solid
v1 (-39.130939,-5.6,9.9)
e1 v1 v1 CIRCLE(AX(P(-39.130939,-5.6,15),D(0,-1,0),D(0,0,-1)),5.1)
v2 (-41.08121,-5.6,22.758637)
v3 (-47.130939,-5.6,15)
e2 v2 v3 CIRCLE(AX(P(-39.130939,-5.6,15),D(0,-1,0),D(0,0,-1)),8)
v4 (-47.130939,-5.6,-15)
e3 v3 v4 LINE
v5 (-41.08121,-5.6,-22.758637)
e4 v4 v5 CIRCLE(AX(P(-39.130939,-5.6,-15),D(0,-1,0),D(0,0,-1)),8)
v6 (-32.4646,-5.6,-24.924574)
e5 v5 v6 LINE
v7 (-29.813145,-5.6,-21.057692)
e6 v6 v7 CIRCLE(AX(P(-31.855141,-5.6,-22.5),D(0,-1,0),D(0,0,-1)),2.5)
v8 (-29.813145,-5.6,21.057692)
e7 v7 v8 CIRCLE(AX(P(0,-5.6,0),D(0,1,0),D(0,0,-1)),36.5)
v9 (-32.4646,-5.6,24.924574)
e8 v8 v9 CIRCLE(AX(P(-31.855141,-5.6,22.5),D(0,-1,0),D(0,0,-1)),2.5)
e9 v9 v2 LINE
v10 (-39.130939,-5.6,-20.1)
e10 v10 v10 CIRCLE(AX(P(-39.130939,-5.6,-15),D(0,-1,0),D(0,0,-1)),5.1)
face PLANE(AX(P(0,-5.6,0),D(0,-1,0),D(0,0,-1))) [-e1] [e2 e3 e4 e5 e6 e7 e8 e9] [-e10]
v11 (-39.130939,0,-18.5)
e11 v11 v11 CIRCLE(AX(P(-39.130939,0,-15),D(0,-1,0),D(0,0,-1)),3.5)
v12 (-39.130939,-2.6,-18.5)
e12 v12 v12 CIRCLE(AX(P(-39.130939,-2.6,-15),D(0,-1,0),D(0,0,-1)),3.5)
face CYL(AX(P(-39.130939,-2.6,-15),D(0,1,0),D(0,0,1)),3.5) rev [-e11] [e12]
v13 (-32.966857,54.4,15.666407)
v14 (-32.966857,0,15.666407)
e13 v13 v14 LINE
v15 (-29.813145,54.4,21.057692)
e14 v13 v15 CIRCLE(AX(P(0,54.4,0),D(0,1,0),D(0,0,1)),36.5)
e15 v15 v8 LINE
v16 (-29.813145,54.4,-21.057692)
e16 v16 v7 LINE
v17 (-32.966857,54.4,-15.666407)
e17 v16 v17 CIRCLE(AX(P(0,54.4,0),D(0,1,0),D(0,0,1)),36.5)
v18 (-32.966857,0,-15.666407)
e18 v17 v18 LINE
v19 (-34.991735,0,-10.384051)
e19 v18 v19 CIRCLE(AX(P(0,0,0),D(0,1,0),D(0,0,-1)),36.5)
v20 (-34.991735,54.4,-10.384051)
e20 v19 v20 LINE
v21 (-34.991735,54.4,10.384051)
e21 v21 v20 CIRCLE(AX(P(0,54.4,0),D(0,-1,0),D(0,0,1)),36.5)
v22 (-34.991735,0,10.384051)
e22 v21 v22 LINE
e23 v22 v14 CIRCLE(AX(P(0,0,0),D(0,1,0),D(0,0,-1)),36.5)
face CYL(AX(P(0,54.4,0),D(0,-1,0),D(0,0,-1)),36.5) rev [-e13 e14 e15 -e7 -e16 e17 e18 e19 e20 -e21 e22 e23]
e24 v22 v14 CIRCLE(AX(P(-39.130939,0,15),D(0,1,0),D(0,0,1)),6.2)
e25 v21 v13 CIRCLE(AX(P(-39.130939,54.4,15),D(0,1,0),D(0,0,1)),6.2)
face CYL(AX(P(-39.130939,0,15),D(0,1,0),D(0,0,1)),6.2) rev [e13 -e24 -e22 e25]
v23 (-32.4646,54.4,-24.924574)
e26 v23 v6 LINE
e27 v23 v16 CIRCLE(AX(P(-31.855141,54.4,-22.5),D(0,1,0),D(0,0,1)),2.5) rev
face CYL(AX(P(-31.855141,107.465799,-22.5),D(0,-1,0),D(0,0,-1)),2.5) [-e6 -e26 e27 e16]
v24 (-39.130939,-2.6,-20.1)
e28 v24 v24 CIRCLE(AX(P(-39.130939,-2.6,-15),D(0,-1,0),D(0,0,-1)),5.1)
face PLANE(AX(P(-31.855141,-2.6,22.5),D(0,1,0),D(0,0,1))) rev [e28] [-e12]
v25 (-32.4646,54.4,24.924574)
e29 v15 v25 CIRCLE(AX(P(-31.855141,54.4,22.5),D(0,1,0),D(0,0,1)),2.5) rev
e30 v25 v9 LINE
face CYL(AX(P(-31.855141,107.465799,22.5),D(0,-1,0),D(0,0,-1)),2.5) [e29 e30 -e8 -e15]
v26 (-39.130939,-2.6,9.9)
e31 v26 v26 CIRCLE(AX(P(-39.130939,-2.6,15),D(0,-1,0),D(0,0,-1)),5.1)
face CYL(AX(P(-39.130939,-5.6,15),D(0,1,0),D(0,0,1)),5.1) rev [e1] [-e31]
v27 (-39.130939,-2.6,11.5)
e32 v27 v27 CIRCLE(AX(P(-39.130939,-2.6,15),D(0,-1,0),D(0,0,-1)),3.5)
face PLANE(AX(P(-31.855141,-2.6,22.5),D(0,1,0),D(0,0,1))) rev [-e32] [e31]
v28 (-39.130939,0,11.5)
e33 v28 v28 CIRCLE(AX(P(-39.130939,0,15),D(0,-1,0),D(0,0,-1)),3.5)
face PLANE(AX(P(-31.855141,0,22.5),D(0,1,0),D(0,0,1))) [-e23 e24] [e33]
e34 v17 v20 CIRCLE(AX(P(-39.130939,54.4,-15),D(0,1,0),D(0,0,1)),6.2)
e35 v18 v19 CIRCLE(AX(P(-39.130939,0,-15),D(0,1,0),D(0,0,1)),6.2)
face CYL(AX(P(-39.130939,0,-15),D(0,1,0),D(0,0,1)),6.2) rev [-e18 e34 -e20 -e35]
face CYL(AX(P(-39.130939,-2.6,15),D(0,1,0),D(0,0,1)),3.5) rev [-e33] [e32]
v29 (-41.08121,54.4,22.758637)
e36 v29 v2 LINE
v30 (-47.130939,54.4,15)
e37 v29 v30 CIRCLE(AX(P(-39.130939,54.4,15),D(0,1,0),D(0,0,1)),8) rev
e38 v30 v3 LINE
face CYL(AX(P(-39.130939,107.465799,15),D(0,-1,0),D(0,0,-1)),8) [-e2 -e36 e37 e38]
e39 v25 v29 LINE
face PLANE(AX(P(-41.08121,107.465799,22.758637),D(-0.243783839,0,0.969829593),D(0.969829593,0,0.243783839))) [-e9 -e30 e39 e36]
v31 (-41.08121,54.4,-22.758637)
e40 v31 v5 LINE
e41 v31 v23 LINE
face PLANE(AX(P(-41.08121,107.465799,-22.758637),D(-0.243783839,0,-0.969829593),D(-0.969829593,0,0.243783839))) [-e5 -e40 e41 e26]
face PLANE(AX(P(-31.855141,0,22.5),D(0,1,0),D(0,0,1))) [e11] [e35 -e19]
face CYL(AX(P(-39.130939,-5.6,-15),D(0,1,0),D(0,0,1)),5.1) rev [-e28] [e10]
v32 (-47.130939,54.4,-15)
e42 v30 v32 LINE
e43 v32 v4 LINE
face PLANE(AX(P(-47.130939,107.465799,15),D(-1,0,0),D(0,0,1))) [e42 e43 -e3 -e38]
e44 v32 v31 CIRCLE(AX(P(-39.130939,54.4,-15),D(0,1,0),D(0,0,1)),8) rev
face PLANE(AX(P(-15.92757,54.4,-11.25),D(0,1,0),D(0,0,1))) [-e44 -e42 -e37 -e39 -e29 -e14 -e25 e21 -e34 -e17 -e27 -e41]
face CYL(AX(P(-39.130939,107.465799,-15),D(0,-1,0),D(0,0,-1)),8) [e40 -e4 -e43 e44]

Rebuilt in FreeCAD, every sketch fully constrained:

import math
import FreeCAD as App
import Part
import Sketcher

doc = App.newDocument("Part")
body = doc.addObject("PartDesign::Body", "Body")
body.AllowCompound = True

sketch1 = doc.addObject("Sketcher::SketchObject", "Sketch")
body.addObject(sketch1)
sketch1.AttachmentSupport = (doc.XZ_Plane, [""])
sketch1.MapMode = "FlatFace"
sketch1.addGeometry(Part.ArcOfCircle(Part.Circle(App.Vector(0, 0, 0), App.Vector(0, 0, 1), 41.5), math.radians(145), math.radians(215)), False)
sketch1.addGeometry(Part.ArcOfCircle(Part.Circle(App.Vector(-31.9, 22.5, 0), App.Vector(0, 0, 1), 2.5), math.radians(-35), math.radians(145)), False)
sketch1.addGeometry(Part.ArcOfCircle(Part.Circle(App.Vector(0, 0, 0), App.Vector(0, 0, 1), 36.5), math.radians(145), math.radians(215)), False)
sketch1.addGeometry(Part.ArcOfCircle(Part.Circle(App.Vector(-31.9, -22.5, 0), App.Vector(0, 0, 1), 2.5), math.radians(-145), math.radians(35)), False)
sketch1.addConstraint(Sketcher.Constraint("Tangent", 0, 1, 1, 2))
sketch1.addConstraint(Sketcher.Constraint("Tangent", 1, 1, 2, 1))
sketch1.addConstraint(Sketcher.Constraint("Tangent", 2, 2, 3, 2))
sketch1.addConstraint(Sketcher.Constraint("Tangent", 3, 1, 0, 2))
sketch1.addConstraint(Sketcher.Constraint("Coincident", 0, 3, -1, 1))
sketch1.addConstraint(Sketcher.Constraint("Coincident", 2, 3, -1, 1))
sketch1.addConstraint(Sketcher.Constraint("Vertical", 1, 3, 3, 3))
sketch1.addConstraint(Sketcher.Constraint("Radius", 0, 41.5))
sketch1.addConstraint(Sketcher.Constraint("Radius", 1, 2.5))
sketch1.addConstraint(Sketcher.Constraint("DistanceY", 3, 3, 1, 3, 45.0))
pad1 = doc.addObject("PartDesign::Pad", "Pad")
body.addObject(pad1)
pad1.Profile = sketch1
pad1.Length = 54.4
pad1.Reversed = True

sketch2 = doc.addObject("Sketcher::SketchObject", "Sketch001")
body.addObject(sketch2)
sketch2.AttachmentSupport = (doc.XZ_Plane, [""])
sketch2.MapMode = "FlatFace"
sketch2.AttachmentOffset = App.Placement(App.Vector(0, 0, -54.4), App.Rotation())
sketch2.addGeometry(Part.Circle(App.Vector(-39, -15, 0), App.Vector(0, 0, 1), 6), False)
sketch2.addGeometry(Part.Circle(App.Vector(-39, 15, 0), App.Vector(0, 0, 1), 6), False)
sketch2.addConstraint(Sketcher.Constraint("Equal", 0, 1))
sketch2.addConstraint(Sketcher.Constraint("Symmetric", 0, 3, 1, 3, -1))
sketch2.addConstraint(Sketcher.Constraint("Diameter", 0, 12.4))
sketch2.addConstraint(Sketcher.Constraint("DistanceY", 0, 3, -1, 1, 15.0))
sketch2.addConstraint(Sketcher.Constraint("DistanceX", 0, 3, -1, 1, 39.130939))
pocket1 = doc.addObject("PartDesign::Pocket", "Pocket")
body.addObject(pocket1)
pocket1.Profile = sketch2
pocket1.Type = "ThroughAll"
pocket1.Reversed = True

sketch3 = doc.addObject("Sketcher::SketchObject", "Sketch002")
body.addObject(sketch3)
sketch3.AttachmentSupport = (doc.XZ_Plane, [""])
sketch3.MapMode = "FlatFace"
sketch3.addGeometry(Part.LineSegment(App.Vector(-47.1, 15, 0), App.Vector(-47.1, -15, 0)), False)
sketch3.addGeometry(Part.ArcOfCircle(Part.Circle(App.Vector(-39.1, -15, 0), App.Vector(0, 0, 1), 8), math.radians(180), math.radians(256)), False)
sketch3.addGeometry(Part.LineSegment(App.Vector(-41.1, -22.8, 0), App.Vector(-32.5, -24.9, 0)), False)
sketch3.addGeometry(Part.ArcOfCircle(Part.Circle(App.Vector(-31.9, -22.5, 0), App.Vector(0, 0, 1), 2.5), math.radians(-104), math.radians(35)), False)
sketch3.addGeometry(Part.ArcOfCircle(Part.Circle(App.Vector(0, 0, 0), App.Vector(0, 0, 1), 36.5), math.radians(-154.58), math.radians(-144.77)), False)
sketch3.addGeometry(Part.ArcOfCircle(Part.Circle(App.Vector(-39.1, -15, 0), App.Vector(0, 0, 1), 6.2), math.radians(48), math.radians(354)), False)
sketch3.addGeometry(Part.ArcOfCircle(Part.Circle(App.Vector(0, 0, 0), App.Vector(0, 0, 1), 36.5), math.radians(163), math.radians(197)), False)
sketch3.addGeometry(Part.ArcOfCircle(Part.Circle(App.Vector(-39.1, 15, 0), App.Vector(0, 0, 1), 6.2), math.radians(6), math.radians(312)), False)
sketch3.addGeometry(Part.ArcOfCircle(Part.Circle(App.Vector(0, 0, 0), App.Vector(0, 0, 1), 36.5), math.radians(144.77), math.radians(154.58)), False)
sketch3.addGeometry(Part.ArcOfCircle(Part.Circle(App.Vector(-31.9, 22.5, 0), App.Vector(0, 0, 1), 2.5), math.radians(-35), math.radians(104)), False)
sketch3.addGeometry(Part.LineSegment(App.Vector(-32.5, 24.9, 0), App.Vector(-41.1, 22.8, 0)), False)
sketch3.addGeometry(Part.ArcOfCircle(Part.Circle(App.Vector(-39.1, 15, 0), App.Vector(0, 0, 1), 8), math.radians(104), math.radians(180)), False)
sketch3.addConstraint(Sketcher.Constraint("Tangent", 0, 2, 1, 1))
sketch3.addConstraint(Sketcher.Constraint("Tangent", 1, 2, 2, 1))
sketch3.addConstraint(Sketcher.Constraint("Tangent", 2, 2, 3, 1))
sketch3.addConstraint(Sketcher.Constraint("Tangent", 3, 2, 4, 2))
sketch3.addConstraint(Sketcher.Constraint("Coincident", 4, 1, 5, 2))
sketch3.addConstraint(Sketcher.Constraint("Coincident", 5, 1, 6, 2))
sketch3.addConstraint(Sketcher.Constraint("Coincident", 6, 1, 7, 2))
sketch3.addConstraint(Sketcher.Constraint("Coincident", 7, 1, 8, 2))
sketch3.addConstraint(Sketcher.Constraint("Tangent", 8, 1, 9, 1))
sketch3.addConstraint(Sketcher.Constraint("Tangent", 9, 2, 10, 1))
sketch3.addConstraint(Sketcher.Constraint("Tangent", 10, 2, 11, 1))
sketch3.addConstraint(Sketcher.Constraint("Tangent", 11, 2, 0, 1))
sketch3.addConstraint(Sketcher.Constraint("Vertical", 0))
sketch3.addConstraint(Sketcher.Constraint("Coincident", 4, 3, -1, 1))
sketch3.addConstraint(Sketcher.Constraint("Coincident", 6, 3, -1, 1))
sketch3.addConstraint(Sketcher.Constraint("Coincident", 8, 3, -1, 1))
sketch3.addConstraint(Sketcher.Constraint("Coincident", 5, 3, 1, 3))
sketch3.addConstraint(Sketcher.Constraint("Coincident", 11, 3, 7, 3))
sketch3.addConstraint(Sketcher.Constraint("Equal", 4, 6))
sketch3.addConstraint(Sketcher.Constraint("Equal", 5, 7))
sketch3.addConstraint(Sketcher.Constraint("Equal", 6, 8))
sketch3.addConstraint(Sketcher.Constraint("Equal", 3, 9))
sketch3.addConstraint(Sketcher.Constraint("Equal", 1, 11))
sketch3.addConstraint(Sketcher.Constraint("Symmetric", 2, 2, 9, 2, -1))
sketch3.addConstraint(Sketcher.Constraint("Radius", 1, 8.0))
sketch3.addConstraint(Sketcher.Constraint("Radius", 3, 2.5))
sketch3.addConstraint(Sketcher.Constraint("Radius", 4, 36.5))
sketch3.addConstraint(Sketcher.Constraint("Radius", 5, 6.2))
sketch3.addConstraint(Sketcher.Constraint("DistanceY", 0, 2, 0, 1, 30.0))
sketch3.addConstraint(Sketcher.Constraint("DistanceY", 3, 3, -1, 1, 22.5))
sketch3.addConstraint(Sketcher.Constraint("DistanceX", 2, 2, -1, 1, 32.4646))
pad2 = doc.addObject("PartDesign::Pad", "Pad001")
body.addObject(pad2)
pad2.Profile = sketch3
pad2.Length = 54.4
pad2.Reversed = True

sketch4 = doc.addObject("Sketcher::SketchObject", "Sketch003")
body.addObject(sketch4)
sketch4.AttachmentSupport = (doc.XZ_Plane, [""])
sketch4.MapMode = "FlatFace"
sketch4.addGeometry(Part.LineSegment(App.Vector(-47.1, 15, 0), App.Vector(-47.1, -15, 0)), False)
sketch4.addGeometry(Part.ArcOfCircle(Part.Circle(App.Vector(-39.1, -15, 0), App.Vector(0, 0, 1), 8), math.radians(180), math.radians(256)), False)
sketch4.addGeometry(Part.LineSegment(App.Vector(-41.1, -22.8, 0), App.Vector(-32.5, -24.9, 0)), False)
sketch4.addGeometry(Part.ArcOfCircle(Part.Circle(App.Vector(-31.9, -22.5, 0), App.Vector(0, 0, 1), 2.5), math.radians(-104), math.radians(35)), False)
sketch4.addGeometry(Part.ArcOfCircle(Part.Circle(App.Vector(0, 0, 0), App.Vector(0, 0, 1), 36.5), math.radians(145), math.radians(215)), False)
sketch4.addGeometry(Part.ArcOfCircle(Part.Circle(App.Vector(-31.9, 22.5, 0), App.Vector(0, 0, 1), 2.5), math.radians(-35), math.radians(104)), False)
sketch4.addGeometry(Part.LineSegment(App.Vector(-32.5, 24.9, 0), App.Vector(-41.1, 22.8, 0)), False)
sketch4.addGeometry(Part.ArcOfCircle(Part.Circle(App.Vector(-39.1, 15, 0), App.Vector(0, 0, 1), 8), math.radians(104), math.radians(180)), False)
sketch4.addGeometry(Part.Circle(App.Vector(-39.1, -15, 0), App.Vector(0, 0, 1), 3.5), False)
sketch4.addGeometry(Part.Circle(App.Vector(-39.1, 15, 0), App.Vector(0, 0, 1), 3.5), False)
sketch4.addConstraint(Sketcher.Constraint("Tangent", 0, 2, 1, 1))
sketch4.addConstraint(Sketcher.Constraint("Tangent", 1, 2, 2, 1))
sketch4.addConstraint(Sketcher.Constraint("Tangent", 2, 2, 3, 1))
sketch4.addConstraint(Sketcher.Constraint("Tangent", 3, 2, 4, 2))
sketch4.addConstraint(Sketcher.Constraint("Tangent", 4, 1, 5, 1))
sketch4.addConstraint(Sketcher.Constraint("Tangent", 5, 2, 6, 1))
sketch4.addConstraint(Sketcher.Constraint("Tangent", 6, 2, 7, 1))
sketch4.addConstraint(Sketcher.Constraint("Tangent", 7, 2, 0, 1))
sketch4.addConstraint(Sketcher.Constraint("Vertical", 0))
sketch4.addConstraint(Sketcher.Constraint("Coincident", 4, 3, -1, 1))
sketch4.addConstraint(Sketcher.Constraint("Coincident", 8, 3, 1, 3))
sketch4.addConstraint(Sketcher.Constraint("Coincident", 9, 3, 7, 3))
sketch4.addConstraint(Sketcher.Constraint("Equal", 3, 5))
sketch4.addConstraint(Sketcher.Constraint("Equal", 1, 7))
sketch4.addConstraint(Sketcher.Constraint("Equal", 8, 9))
sketch4.addConstraint(Sketcher.Constraint("Symmetric", 2, 2, 5, 2, -1))
sketch4.addConstraint(Sketcher.Constraint("Diameter", 8, 7.0))
sketch4.addConstraint(Sketcher.Constraint("Radius", 1, 8.0))
sketch4.addConstraint(Sketcher.Constraint("Radius", 3, 2.5))
sketch4.addConstraint(Sketcher.Constraint("Radius", 4, 36.5))
sketch4.addConstraint(Sketcher.Constraint("DistanceY", 0, 2, 0, 1, 30.0))
sketch4.addConstraint(Sketcher.Constraint("DistanceY", 3, 3, 5, 3, 45.0))
sketch4.addConstraint(Sketcher.Constraint("DistanceX", 2, 2, -1, 1, 32.4646))
pad3 = doc.addObject("PartDesign::Pad", "Pad002")
body.addObject(pad3)
pad3.Profile = sketch4
pad3.Length = 2.6

sketch5 = doc.addObject("Sketcher::SketchObject", "Sketch004")
body.addObject(sketch5)
sketch5.AttachmentSupport = (doc.XZ_Plane, [""])
sketch5.MapMode = "FlatFace"
sketch5.AttachmentOffset = App.Placement(App.Vector(0, 0, 2.6), App.Rotation())
sketch5.addGeometry(Part.LineSegment(App.Vector(-32.5, 24.9, 0), App.Vector(-41.1, 22.8, 0)), False)
sketch5.addGeometry(Part.ArcOfCircle(Part.Circle(App.Vector(-39.1, 15, 0), App.Vector(0, 0, 1), 8), math.radians(104), math.radians(180)), False)
sketch5.addGeometry(Part.LineSegment(App.Vector(-47.1, 15, 0), App.Vector(-47.1, -15, 0)), False)
sketch5.addGeometry(Part.ArcOfCircle(Part.Circle(App.Vector(-39.1, -15, 0), App.Vector(0, 0, 1), 8), math.radians(180), math.radians(256)), False)
sketch5.addGeometry(Part.LineSegment(App.Vector(-41.1, -22.8, 0), App.Vector(-32.5, -24.9, 0)), False)
sketch5.addGeometry(Part.ArcOfCircle(Part.Circle(App.Vector(-31.9, -22.5, 0), App.Vector(0, 0, 1), 2.5), math.radians(-104), math.radians(35)), False)
sketch5.addGeometry(Part.ArcOfCircle(Part.Circle(App.Vector(0, 0, 0), App.Vector(0, 0, 1), 36.5), math.radians(145), math.radians(215)), False)
sketch5.addGeometry(Part.ArcOfCircle(Part.Circle(App.Vector(-31.9, 22.5, 0), App.Vector(0, 0, 1), 2.5), math.radians(-35), math.radians(104)), False)
sketch5.addGeometry(Part.Circle(App.Vector(-39.1, -15, 0), App.Vector(0, 0, 1), 5.1), False)
sketch5.addGeometry(Part.Circle(App.Vector(-39.1, 15, 0), App.Vector(0, 0, 1), 5.1), False)
sketch5.addConstraint(Sketcher.Constraint("Tangent", 0, 2, 1, 1))
sketch5.addConstraint(Sketcher.Constraint("Tangent", 1, 2, 2, 1))
sketch5.addConstraint(Sketcher.Constraint("Tangent", 2, 2, 3, 1))
sketch5.addConstraint(Sketcher.Constraint("Tangent", 3, 2, 4, 1))
sketch5.addConstraint(Sketcher.Constraint("Tangent", 4, 2, 5, 1))
sketch5.addConstraint(Sketcher.Constraint("Tangent", 5, 2, 6, 2))
sketch5.addConstraint(Sketcher.Constraint("Tangent", 6, 1, 7, 1))
sketch5.addConstraint(Sketcher.Constraint("Tangent", 7, 2, 0, 1))
sketch5.addConstraint(Sketcher.Constraint("Vertical", 2))
sketch5.addConstraint(Sketcher.Constraint("Coincident", 6, 3, -1, 1))
sketch5.addConstraint(Sketcher.Constraint("Coincident", 8, 3, 3, 3))
sketch5.addConstraint(Sketcher.Constraint("Coincident", 9, 3, 1, 3))
sketch5.addConstraint(Sketcher.Constraint("Equal", 1, 3))
sketch5.addConstraint(Sketcher.Constraint("Equal", 5, 7))
sketch5.addConstraint(Sketcher.Constraint("Equal", 8, 9))
sketch5.addConstraint(Sketcher.Constraint("Symmetric", 0, 2, 3, 2, -1))
sketch5.addConstraint(Sketcher.Constraint("Radius", 1, 8.0))
sketch5.addConstraint(Sketcher.Constraint("Diameter", 8, 10.2))
sketch5.addConstraint(Sketcher.Constraint("Radius", 5, 2.5))
sketch5.addConstraint(Sketcher.Constraint("Radius", 6, 36.5))
sketch5.addConstraint(Sketcher.Constraint("DistanceY", 2, 2, 2, 1, 30.0))
sketch5.addConstraint(Sketcher.Constraint("DistanceY", 5, 3, 7, 3, 45.0))
sketch5.addConstraint(Sketcher.Constraint("DistanceX", 4, 2, -1, 1, 32.4646))
pad4 = doc.addObject("PartDesign::Pad", "Pad003")
body.addObject(pad4)
pad4.Profile = sketch5
pad4.Length = 3

doc.recompute()
